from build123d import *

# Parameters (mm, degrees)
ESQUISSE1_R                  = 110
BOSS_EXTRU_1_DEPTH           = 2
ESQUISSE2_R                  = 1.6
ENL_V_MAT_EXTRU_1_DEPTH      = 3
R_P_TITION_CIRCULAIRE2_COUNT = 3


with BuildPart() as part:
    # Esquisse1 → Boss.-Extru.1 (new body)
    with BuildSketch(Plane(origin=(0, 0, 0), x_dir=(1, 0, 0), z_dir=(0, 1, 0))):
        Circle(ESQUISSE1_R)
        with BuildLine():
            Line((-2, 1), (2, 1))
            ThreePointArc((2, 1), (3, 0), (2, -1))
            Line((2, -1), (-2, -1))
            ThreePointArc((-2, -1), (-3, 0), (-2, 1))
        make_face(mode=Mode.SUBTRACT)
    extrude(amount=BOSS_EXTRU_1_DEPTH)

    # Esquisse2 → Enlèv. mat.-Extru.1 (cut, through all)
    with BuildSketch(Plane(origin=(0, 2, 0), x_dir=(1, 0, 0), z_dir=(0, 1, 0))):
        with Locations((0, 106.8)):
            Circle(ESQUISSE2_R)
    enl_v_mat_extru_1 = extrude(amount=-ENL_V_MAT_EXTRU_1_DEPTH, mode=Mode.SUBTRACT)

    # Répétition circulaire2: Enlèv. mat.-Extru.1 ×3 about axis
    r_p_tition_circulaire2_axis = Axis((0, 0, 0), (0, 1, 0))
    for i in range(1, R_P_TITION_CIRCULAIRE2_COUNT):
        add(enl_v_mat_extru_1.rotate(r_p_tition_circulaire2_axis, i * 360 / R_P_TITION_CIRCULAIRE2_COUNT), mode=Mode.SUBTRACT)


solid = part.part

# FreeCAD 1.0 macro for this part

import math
import FreeCAD as App
import Part
import Sketcher
from FreeCAD import Vector
Q = App.Units.Quantity

doc = App.newDocument("Part")
params = doc.addObject("Spreadsheet::Sheet", "Params")
for row, (alias, value) in enumerate([
    ("sketch1_diameter", "220 mm"),
    ("sketch1_radius", "1 mm"),
    ("sketch1_width", "4 mm"),
    ("pad1_length", "2 mm"),
    ("sketch2_diameter", "3.2 mm"),
], start=1):
    params.set(f"A{row}", alias)
    params.set(f"B{row}", "=" + value)
    params.setAlias(f"B{row}", alias)

body = doc.addObject("PartDesign::Body", "Body")

sketch1 = body.newObject("Sketcher::SketchObject", "Sketch")
sketch1.AttachmentSupport = (doc.getObject("XZ_Plane"), [""])
sketch1.MapMode = "FlatFace"
sketch1.addGeometry(Part.Circle(Vector(0, 0, 0), Vector(0, 0, 1), 110), False)
sketch1.addGeometry(Part.ArcOfCircle(Part.Circle(Vector(-2, 0, 0), Vector(0, 0, 1), 1), math.radians(90), math.radians(270)), False)
sketch1.addGeometry(Part.LineSegment(Vector(-2, -1, 0), Vector(2, -1, 0)), False)
sketch1.addGeometry(Part.ArcOfCircle(Part.Circle(Vector(2, 0, 0), Vector(0, 0, 1), 1), math.radians(-90), math.radians(90)), False)
sketch1.addGeometry(Part.LineSegment(Vector(2, 1, 0), Vector(-2, 1, 0)), False)
sketch1.addConstraint(Sketcher.Constraint("Tangent", 1, 2, 2, 1))
sketch1.addConstraint(Sketcher.Constraint("Tangent", 2, 2, 3, 1))
sketch1.addConstraint(Sketcher.Constraint("Tangent", 3, 2, 4, 1))
sketch1.addConstraint(Sketcher.Constraint("Tangent", 4, 2, 1, 1))
sketch1.addConstraint(Sketcher.Constraint("Horizontal", 2))
sketch1.addConstraint(Sketcher.Constraint("Horizontal", 4))
sketch1.addConstraint(Sketcher.Constraint("Coincident", 0, 3, -1, 1))
sketch1.addConstraint(Sketcher.Constraint("Symmetric", 1, 3, 3, 3, -1, 1))
sketch1.addConstraint(Sketcher.Constraint("Diameter", 0, Q("220 mm")))
sketch1.addConstraint(Sketcher.Constraint("Radius", 1, Q("1 mm")))
sketch1.addConstraint(Sketcher.Constraint("DistanceX", 2, 1, 2, 2, Q("4 mm")))
sketch1.setExpression("Constraints[8]", "Params.sketch1_diameter")
sketch1.setExpression("Constraints[9]", "Params.sketch1_radius")
sketch1.setExpression("Constraints[10]", "Params.sketch1_width")
pad1 = body.newObject("PartDesign::Pad", "Pad")
pad1.Profile = sketch1
pad1.setExpression("Length", "Params.pad1_length")
pad1.Reversed = True

sketch2 = body.newObject("Sketcher::SketchObject", "Sketch001")
sketch2.AttachmentSupport = (doc.getObject("XZ_Plane"), [""])
sketch2.MapMode = "FlatFace"
sketch2.AttachmentOffset = App.Placement(Vector(0, 0, -2), App.Rotation())
sketch2.addGeometry(Part.Circle(Vector(0, -106.8, 0), Vector(0, 0, 1), 1.6), False)
sketch2.addConstraint(Sketcher.Constraint("PointOnObject", 0, 3, -2))
sketch2.addConstraint(Sketcher.Constraint("Diameter", 0, Q("3.2 mm")))
sketch2.addConstraint(Sketcher.Constraint("DistanceY", 0, 3, -1, 1, Q("106.8 mm")))
sketch2.setExpression("Constraints[1]", "Params.sketch2_diameter")
pocket1 = body.newObject("PartDesign::Pocket", "Pocket")
pocket1.Profile = sketch2
pocket1.Type = "ThroughAll"
pocket1.Reversed = True
doc.recompute()

polarpattern = body.newObject("PartDesign::PolarPattern", "PolarPattern")
polarpattern.Originals = [pocket1]
polarpattern.Axis = (doc.getObject("Y_Axis"), [""])
polarpattern.Angle = 360
polarpattern.Occurrences = 3
body.Tip = polarpattern

doc.recompute()
